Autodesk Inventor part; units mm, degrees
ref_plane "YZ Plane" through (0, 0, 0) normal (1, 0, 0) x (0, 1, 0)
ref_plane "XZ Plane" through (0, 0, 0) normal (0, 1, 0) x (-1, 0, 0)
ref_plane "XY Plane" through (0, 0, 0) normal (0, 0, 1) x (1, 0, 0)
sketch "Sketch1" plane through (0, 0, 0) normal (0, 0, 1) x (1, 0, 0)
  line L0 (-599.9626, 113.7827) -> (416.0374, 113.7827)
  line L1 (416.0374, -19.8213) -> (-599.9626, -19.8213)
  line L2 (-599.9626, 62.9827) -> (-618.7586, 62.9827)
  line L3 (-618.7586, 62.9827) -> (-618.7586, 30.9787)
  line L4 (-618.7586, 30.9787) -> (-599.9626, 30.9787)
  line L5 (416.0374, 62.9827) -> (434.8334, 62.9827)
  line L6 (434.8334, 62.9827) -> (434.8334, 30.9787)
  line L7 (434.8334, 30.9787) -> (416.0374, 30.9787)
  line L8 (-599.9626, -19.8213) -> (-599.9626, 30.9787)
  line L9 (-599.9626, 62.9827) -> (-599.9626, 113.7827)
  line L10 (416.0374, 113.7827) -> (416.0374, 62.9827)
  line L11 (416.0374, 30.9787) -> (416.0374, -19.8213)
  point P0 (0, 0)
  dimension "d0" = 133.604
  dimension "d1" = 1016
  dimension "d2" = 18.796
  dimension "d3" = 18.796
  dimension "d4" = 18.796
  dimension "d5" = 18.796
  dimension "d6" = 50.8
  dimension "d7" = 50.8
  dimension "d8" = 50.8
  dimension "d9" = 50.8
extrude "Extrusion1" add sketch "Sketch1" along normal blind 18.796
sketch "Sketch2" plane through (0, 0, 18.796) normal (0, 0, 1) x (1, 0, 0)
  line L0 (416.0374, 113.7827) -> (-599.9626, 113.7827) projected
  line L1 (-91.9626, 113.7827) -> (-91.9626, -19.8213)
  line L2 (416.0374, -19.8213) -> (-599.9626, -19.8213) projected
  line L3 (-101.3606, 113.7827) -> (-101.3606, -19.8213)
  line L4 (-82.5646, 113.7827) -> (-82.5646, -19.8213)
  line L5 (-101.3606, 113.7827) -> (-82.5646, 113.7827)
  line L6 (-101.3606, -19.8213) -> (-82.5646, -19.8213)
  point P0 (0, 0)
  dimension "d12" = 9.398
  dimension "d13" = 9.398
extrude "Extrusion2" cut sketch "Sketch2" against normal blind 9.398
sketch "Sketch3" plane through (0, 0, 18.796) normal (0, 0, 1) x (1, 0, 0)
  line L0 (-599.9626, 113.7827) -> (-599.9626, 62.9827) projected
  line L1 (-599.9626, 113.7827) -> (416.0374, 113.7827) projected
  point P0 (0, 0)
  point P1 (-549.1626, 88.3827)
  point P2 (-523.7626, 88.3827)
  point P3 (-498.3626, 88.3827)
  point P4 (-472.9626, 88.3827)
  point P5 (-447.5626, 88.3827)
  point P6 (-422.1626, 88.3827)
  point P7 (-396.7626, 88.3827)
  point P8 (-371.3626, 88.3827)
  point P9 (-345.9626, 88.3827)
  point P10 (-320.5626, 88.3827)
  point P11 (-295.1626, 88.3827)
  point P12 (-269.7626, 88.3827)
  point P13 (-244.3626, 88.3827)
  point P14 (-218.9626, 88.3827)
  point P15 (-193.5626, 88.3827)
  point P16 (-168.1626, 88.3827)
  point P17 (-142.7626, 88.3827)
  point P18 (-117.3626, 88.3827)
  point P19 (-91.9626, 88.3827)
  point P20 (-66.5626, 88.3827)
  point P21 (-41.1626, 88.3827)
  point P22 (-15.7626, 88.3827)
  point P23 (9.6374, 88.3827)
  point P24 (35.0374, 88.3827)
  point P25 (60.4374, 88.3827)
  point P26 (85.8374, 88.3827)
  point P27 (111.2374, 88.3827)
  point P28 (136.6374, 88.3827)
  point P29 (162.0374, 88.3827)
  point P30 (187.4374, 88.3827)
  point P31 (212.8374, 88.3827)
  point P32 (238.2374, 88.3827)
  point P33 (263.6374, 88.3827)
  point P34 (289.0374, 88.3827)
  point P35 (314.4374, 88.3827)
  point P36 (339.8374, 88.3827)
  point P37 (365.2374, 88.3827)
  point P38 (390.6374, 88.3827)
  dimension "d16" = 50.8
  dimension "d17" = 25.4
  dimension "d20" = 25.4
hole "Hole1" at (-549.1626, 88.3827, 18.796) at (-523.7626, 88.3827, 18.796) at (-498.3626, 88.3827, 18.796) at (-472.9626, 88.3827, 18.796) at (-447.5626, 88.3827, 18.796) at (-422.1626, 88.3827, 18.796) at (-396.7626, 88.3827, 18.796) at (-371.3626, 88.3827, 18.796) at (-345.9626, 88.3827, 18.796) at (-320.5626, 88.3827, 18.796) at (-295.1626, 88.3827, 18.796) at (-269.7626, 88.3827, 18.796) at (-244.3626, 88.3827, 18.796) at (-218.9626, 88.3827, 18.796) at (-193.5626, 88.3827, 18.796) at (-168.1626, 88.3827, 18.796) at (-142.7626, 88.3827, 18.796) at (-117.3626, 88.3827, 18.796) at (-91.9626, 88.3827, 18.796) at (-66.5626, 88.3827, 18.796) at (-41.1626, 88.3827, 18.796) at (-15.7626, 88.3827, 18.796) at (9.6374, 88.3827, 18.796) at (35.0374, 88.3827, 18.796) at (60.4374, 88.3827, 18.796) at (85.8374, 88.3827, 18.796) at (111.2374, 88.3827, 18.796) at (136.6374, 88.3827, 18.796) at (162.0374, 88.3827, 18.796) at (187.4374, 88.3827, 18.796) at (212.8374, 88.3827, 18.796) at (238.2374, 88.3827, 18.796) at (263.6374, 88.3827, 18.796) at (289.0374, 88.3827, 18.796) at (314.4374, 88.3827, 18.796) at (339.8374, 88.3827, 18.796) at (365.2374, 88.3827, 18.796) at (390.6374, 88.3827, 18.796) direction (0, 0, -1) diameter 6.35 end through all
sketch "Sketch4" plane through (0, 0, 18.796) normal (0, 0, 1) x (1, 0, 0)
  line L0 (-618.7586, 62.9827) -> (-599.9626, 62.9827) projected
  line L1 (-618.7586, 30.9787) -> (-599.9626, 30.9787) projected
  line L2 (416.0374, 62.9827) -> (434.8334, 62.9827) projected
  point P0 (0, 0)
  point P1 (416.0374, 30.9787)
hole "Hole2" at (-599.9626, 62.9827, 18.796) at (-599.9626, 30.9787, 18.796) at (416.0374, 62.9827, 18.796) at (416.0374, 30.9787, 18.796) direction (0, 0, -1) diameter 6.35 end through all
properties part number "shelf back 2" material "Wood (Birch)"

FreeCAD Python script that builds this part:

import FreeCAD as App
import Part
import Sketcher
from FreeCAD import Vector
Q = App.Units.Quantity


def add_polygon(sketch, points):
    """Adds a closed chain of lines whose ends are joined by coincident constraints."""
    first, n = sketch.GeometryCount, len(points)
    for a, b in zip(points, points[1:] + points[:1]):
        sketch.addGeometry(Part.LineSegment(App.Vector(*a, 0), App.Vector(*b, 0)), False)
    for i in range(n):
        sketch.addConstraint(Sketcher.Constraint("Coincident", first + i, 2, first + (i + 1) % n, 1))

doc = App.newDocument("Part")
body = doc.addObject("PartDesign::Body", "Body")

# Sketch on XY plane
sketch1 = body.newObject("Sketcher::SketchObject", "Sketch")
sketch1.AttachmentSupport = (doc.getObject("XY_Plane"), [""])
sketch1.MapMode = "FlatFace"
add_polygon(sketch1, [(416.0374, 113.7827), (-599.9626, 113.7827), (-599.9626, 62.9827), (-618.7586, 62.9827), (-618.7586, 30.9787), (-599.9626, 30.9787), (-599.9626, -19.8213), (416.0374, -19.8213), (416.0374, 30.9787), (434.8334, 30.9787), (434.8334, 62.9827), (416.0374, 62.9827)])  # lines 0-11
sketch1.addConstraint([
    Sketcher.Constraint("Horizontal", 0),
    Sketcher.Constraint("Vertical", 1),
    Sketcher.Constraint("Horizontal", 2),
    Sketcher.Constraint("Vertical", 3),
    Sketcher.Constraint("Horizontal", 4),
    Sketcher.Constraint("Vertical", 5),
    Sketcher.Constraint("Horizontal", 6),
    Sketcher.Constraint("Vertical", 7),
    Sketcher.Constraint("Horizontal", 8),
    Sketcher.Constraint("Vertical", 9),
    Sketcher.Constraint("Horizontal", 10),
    Sketcher.Constraint("Vertical", 11),
    Sketcher.Constraint("Horizontal", 4, 2, 7, 2),
    Sketcher.Constraint("Horizontal", 2, 2, 9, 2),
    Sketcher.Constraint("Vertical", 1, 2, 4, 2),
    Sketcher.Constraint("Vertical", 7, 2, 10, 2),
    Sketcher.Constraint("Equal", 4, 8),
    Sketcher.Constraint("Equal", 1, 5),
    Sketcher.Constraint("DistanceX", 0, 2, 0, 1, Q("40 in")),
    Sketcher.Constraint("DistanceY", 1, 2, 1, 1, Q("2 in")),
    Sketcher.Constraint("DistanceX", 2, 2, 2, 1, Q("0.74 in")),
    Sketcher.Constraint("DistanceY", 5, 2, 0, 2, Q("5.26 in")),
    Sketcher.Constraint("DistanceX", 0, 2, -1, 1, 599.9626),
    Sketcher.Constraint("DistanceY", -1, 1, 0, 2, 113.7827),
])
pad1 = body.newObject("PartDesign::Pad", "Pad")
pad1.Profile = sketch1
pad1.Length = Q("0.74 in")

# Sketch on XY plane
sketch2 = body.newObject("Sketcher::SketchObject", "Sketch001")
sketch2.AttachmentSupport = (doc.getObject("XY_Plane"), [""])
sketch2.MapMode = "FlatFace"
sketch2.AttachmentOffset = App.Placement(Vector(0, 0, 0.74 * 25.4), App.Rotation())
add_polygon(sketch2, [(-82.5646, -19.8213), (-82.5646, 113.7827), (-101.3606, 113.7827), (-101.3606, -19.8213)])  # lines 0-3
sketch2.addConstraint([
    Sketcher.Constraint("Vertical", 0),
    Sketcher.Constraint("Horizontal", 1),
    Sketcher.Constraint("Vertical", 2),
    Sketcher.Constraint("Horizontal", 3),
    Sketcher.Constraint("DistanceX", 1, 2, 1, 1, Q("0.74 in")),
    Sketcher.Constraint("DistanceY", 0, 1, 0, 2, Q("5.26 in")),
    Sketcher.Constraint("DistanceX", 0, 2, -1, 1, 82.5646),
    Sketcher.Constraint("DistanceY", -1, 1, 0, 2, 113.7827),
])
pocket1 = body.newObject("PartDesign::Pocket", "Pocket")
pocket1.Profile = sketch2
pocket1.Length = Q("0.37 in")

# Sketch on XY plane
sketch3 = body.newObject("Sketcher::SketchObject", "Sketch002")
sketch3.AttachmentSupport = (doc.getObject("XY_Plane"), [""])
sketch3.MapMode = "FlatFace"
sketch3.AttachmentOffset = App.Placement(Vector(0, 0, 0.74 * 25.4), App.Rotation())
sketch3.addGeometry([
    Part.Circle(Vector(-549.1626, 88.3827, 0), Vector(0, 0, 1), 3.175),  # 0
    Part.Circle(Vector(-523.7626, 88.3827, 0), Vector(0, 0, 1), 3.175),  # 1
    Part.Circle(Vector(-498.3626, 88.3827, 0), Vector(0, 0, 1), 3.175),  # 2
    Part.Circle(Vector(-472.9626, 88.3827, 0), Vector(0, 0, 1), 3.175),  # 3
    Part.Circle(Vector(-447.5626, 88.3827, 0), Vector(0, 0, 1), 3.175),  # 4
    Part.Circle(Vector(-422.1626, 88.3827, 0), Vector(0, 0, 1), 3.175),  # 5
    Part.Circle(Vector(-396.7626, 88.3827, 0), Vector(0, 0, 1), 3.175),  # 6
    Part.Circle(Vector(-371.3626, 88.3827, 0), Vector(0, 0, 1), 3.175),  # 7
    Part.Circle(Vector(-345.9626, 88.3827, 0), Vector(0, 0, 1), 3.175),  # 8
    Part.Circle(Vector(-320.5626, 88.3827, 0), Vector(0, 0, 1), 3.175),  # 9
    Part.Circle(Vector(-295.1626, 88.3827, 0), Vector(0, 0, 1), 3.175),  # 10
    Part.Circle(Vector(-269.7626, 88.3827, 0), Vector(0, 0, 1), 3.175),  # 11
    Part.Circle(Vector(-244.3626, 88.3827, 0), Vector(0, 0, 1), 3.175),  # 12
    Part.Circle(Vector(-218.9626, 88.3827, 0), Vector(0, 0, 1), 3.175),  # 13
    Part.Circle(Vector(-193.5626, 88.3827, 0), Vector(0, 0, 1), 3.175),  # 14
    Part.Circle(Vector(-168.1626, 88.3827, 0), Vector(0, 0, 1), 3.175),  # 15
    Part.Circle(Vector(-142.7626, 88.3827, 0), Vector(0, 0, 1), 3.175),  # 16
    Part.Circle(Vector(-117.3626, 88.3827, 0), Vector(0, 0, 1), 3.175),  # 17
    Part.Circle(Vector(-91.9626, 88.3827, 0), Vector(0, 0, 1), 3.175),  # 18
    Part.Circle(Vector(-66.5626, 88.3827, 0), Vector(0, 0, 1), 3.175),  # 19
    Part.Circle(Vector(-41.1626, 88.3827, 0), Vector(0, 0, 1), 3.175),  # 20
    Part.Circle(Vector(-15.7626, 88.3827, 0), Vector(0, 0, 1), 3.175),  # 21
    Part.Circle(Vector(9.6374, 88.3827, 0), Vector(0, 0, 1), 3.175),  # 22
    Part.Circle(Vector(35.0374, 88.3827, 0), Vector(0, 0, 1), 3.175),  # 23
    Part.Circle(Vector(60.4374, 88.3827, 0), Vector(0, 0, 1), 3.175),  # 24
    Part.Circle(Vector(85.8374, 88.3827, 0), Vector(0, 0, 1), 3.175),  # 25
    Part.Circle(Vector(111.2374, 88.3827, 0), Vector(0, 0, 1), 3.175),  # 26
    Part.Circle(Vector(136.6374, 88.3827, 0), Vector(0, 0, 1), 3.175),  # 27
    Part.Circle(Vector(162.0374, 88.3827, 0), Vector(0, 0, 1), 3.175),  # 28
    Part.Circle(Vector(187.4374, 88.3827, 0), Vector(0, 0, 1), 3.175),  # 29
    Part.Circle(Vector(212.8374, 88.3827, 0), Vector(0, 0, 1), 3.175),  # 30
    Part.Circle(Vector(238.2374, 88.3827, 0), Vector(0, 0, 1), 3.175),  # 31
    Part.Circle(Vector(263.6374, 88.3827, 0), Vector(0, 0, 1), 3.175),  # 32
    Part.Circle(Vector(289.0374, 88.3827, 0), Vector(0, 0, 1), 3.175),  # 33
    Part.Circle(Vector(314.4374, 88.3827, 0), Vector(0, 0, 1), 3.175),  # 34
    Part.Circle(Vector(339.8374, 88.3827, 0), Vector(0, 0, 1), 3.175),  # 35
    Part.Circle(Vector(365.2374, 88.3827, 0), Vector(0, 0, 1), 3.175),  # 36
    Part.Circle(Vector(390.6374, 88.3827, 0), Vector(0, 0, 1), 3.175),  # 37
], False)
sketch3.addConstraint([
    Sketcher.Constraint("Equal", 0, 1),
    Sketcher.Constraint("Equal", 1, 2),
    Sketcher.Constraint("Equal", 2, 3),
    Sketcher.Constraint("Equal", 3, 4),
    Sketcher.Constraint("Equal", 4, 5),
    Sketcher.Constraint("Equal", 5, 6),
    Sketcher.Constraint("Equal", 6, 7),
    Sketcher.Constraint("Equal", 7, 8),
    Sketcher.Constraint("Equal", 8, 9),
    Sketcher.Constraint("Equal", 9, 10),
    Sketcher.Constraint("Equal", 10, 11),
    Sketcher.Constraint("Equal", 11, 12),
    Sketcher.Constraint("Equal", 12, 13),
    Sketcher.Constraint("Equal", 13, 14),
    Sketcher.Constraint("Equal", 14, 15),
    Sketcher.Constraint("Equal", 15, 16),
    Sketcher.Constraint("Equal", 16, 17),
    Sketcher.Constraint("Equal", 17, 18),
    Sketcher.Constraint("Equal", 18, 19),
    Sketcher.Constraint("Equal", 19, 20),
    Sketcher.Constraint("Equal", 20, 21),
    Sketcher.Constraint("Equal", 21, 22),
    Sketcher.Constraint("Equal", 22, 23),
    Sketcher.Constraint("Equal", 23, 24),
    Sketcher.Constraint("Equal", 24, 25),
    Sketcher.Constraint("Equal", 25, 26),
    Sketcher.Constraint("Equal", 26, 27),
    Sketcher.Constraint("Equal", 27, 28),
    Sketcher.Constraint("Equal", 28, 29),
    Sketcher.Constraint("Equal", 29, 30),
    Sketcher.Constraint("Equal", 30, 31),
    Sketcher.Constraint("Equal", 31, 32),
    Sketcher.Constraint("Equal", 32, 33),
    Sketcher.Constraint("Equal", 33, 34),
    Sketcher.Constraint("Equal", 34, 35),
    Sketcher.Constraint("Equal", 35, 36),
    Sketcher.Constraint("Equal", 36, 37),
    Sketcher.Constraint("Horizontal", 0, 3, 1, 3),
    Sketcher.Constraint("Horizontal", 1, 3, 2, 3),
    Sketcher.Constraint("Horizontal", 2, 3, 3, 3),
    Sketcher.Constraint("Horizontal", 3, 3, 4, 3),
    Sketcher.Constraint("Horizontal", 4, 3, 5, 3),
    Sketcher.Constraint("Horizontal", 5, 3, 6, 3),
    Sketcher.Constraint("Horizontal", 6, 3, 7, 3),
    Sketcher.Constraint("Horizontal", 7, 3, 8, 3),
    Sketcher.Constraint("Horizontal", 8, 3, 9, 3),
    Sketcher.Constraint("Horizontal", 9, 3, 10, 3),
    Sketcher.Constraint("Horizontal", 10, 3, 11, 3),
    Sketcher.Constraint("Horizontal", 11, 3, 12, 3),
    Sketcher.Constraint("Horizontal", 12, 3, 13, 3),
    Sketcher.Constraint("Horizontal", 13, 3, 14, 3),
    Sketcher.Constraint("Horizontal", 14, 3, 15, 3),
    Sketcher.Constraint("Horizontal", 15, 3, 16, 3),
    Sketcher.Constraint("Horizontal", 16, 3, 17, 3),
    Sketcher.Constraint("Horizontal", 17, 3, 18, 3),
    Sketcher.Constraint("Horizontal", 18, 3, 19, 3),
    Sketcher.Constraint("Horizontal", 19, 3, 20, 3),
    Sketcher.Constraint("Horizontal", 20, 3, 21, 3),
    Sketcher.Constraint("Horizontal", 21, 3, 22, 3),
    Sketcher.Constraint("Horizontal", 22, 3, 23, 3),
    Sketcher.Constraint("Horizontal", 23, 3, 24, 3),
    Sketcher.Constraint("Horizontal", 24, 3, 25, 3),
    Sketcher.Constraint("Horizontal", 25, 3, 26, 3),
    Sketcher.Constraint("Horizontal", 26, 3, 27, 3),
    Sketcher.Constraint("Horizontal", 27, 3, 28, 3),
    Sketcher.Constraint("Horizontal", 28, 3, 29, 3),
    Sketcher.Constraint("Horizontal", 29, 3, 30, 3),
    Sketcher.Constraint("Horizontal", 30, 3, 31, 3),
    Sketcher.Constraint("Horizontal", 31, 3, 32, 3),
    Sketcher.Constraint("Horizontal", 32, 3, 33, 3),
    Sketcher.Constraint("Horizontal", 33, 3, 34, 3),
    Sketcher.Constraint("Horizontal", 34, 3, 35, 3),
    Sketcher.Constraint("Horizontal", 35, 3, 36, 3),
    Sketcher.Constraint("Horizontal", 36, 3, 37, 3),
    Sketcher.Constraint("Diameter", 0, Q("0.25 in")),
    Sketcher.Constraint("DistanceX", 0, 3, 1, 3, Q("1 in")),
    Sketcher.Constraint("DistanceX", 1, 3, 2, 3, Q("1 in")),
    Sketcher.Constraint("DistanceX", 2, 3, 3, 3, Q("1 in")),
    Sketcher.Constraint("DistanceX", 3, 3, 4, 3, Q("1 in")),
    Sketcher.Constraint("DistanceX", 4, 3, 5, 3, Q("1 in")),
    Sketcher.Constraint("DistanceX", 5, 3, 6, 3, Q("1 in")),
    Sketcher.Constraint("DistanceX", 6, 3, 7, 3, Q("1 in")),
    Sketcher.Constraint("DistanceX", 7, 3, 8, 3, Q("1 in")),
    Sketcher.Constraint("DistanceX", 8, 3, 9, 3, Q("1 in")),
    Sketcher.Constraint("DistanceX", 9, 3, 10, 3, Q("1 in")),
    Sketcher.Constraint("DistanceX", 10, 3, 11, 3, Q("1 in")),
    Sketcher.Constraint("DistanceX", 11, 3, 12, 3, Q("1 in")),
    Sketcher.Constraint("DistanceX", 12, 3, 13, 3, Q("1 in")),
    Sketcher.Constraint("DistanceX", 13, 3, 14, 3, Q("1 in")),
    Sketcher.Constraint("DistanceX", 14, 3, 15, 3, Q("1 in")),
    Sketcher.Constraint("DistanceX", 15, 3, 16, 3, Q("1 in")),
    Sketcher.Constraint("DistanceX", 16, 3, 17, 3, Q("1 in")),
    Sketcher.Constraint("DistanceX", 17, 3, 18, 3, Q("1 in")),
    Sketcher.Constraint("DistanceX", 18, 3, 19, 3, Q("1 in")),
    Sketcher.Constraint("DistanceX", 19, 3, 20, 3, Q("1 in")),
    Sketcher.Constraint("DistanceX", 20, 3, 21, 3, Q("1 in")),
    Sketcher.Constraint("DistanceX", 21, 3, 22, 3, Q("1 in")),
    Sketcher.Constraint("DistanceX", 22, 3, 23, 3, Q("1 in")),
    Sketcher.Constraint("DistanceX", 23, 3, 24, 3, Q("1 in")),
    Sketcher.Constraint("DistanceX", 24, 3, 25, 3, Q("1 in")),
    Sketcher.Constraint("DistanceX", 25, 3, 26, 3, Q("1 in")),
    Sketcher.Constraint("DistanceX", 26, 3, 27, 3, Q("1 in")),
    Sketcher.Constraint("DistanceX", 27, 3, 28, 3, Q("1 in")),
    Sketcher.Constraint("DistanceX", 28, 3, 29, 3, Q("1 in")),
    Sketcher.Constraint("DistanceX", 29, 3, 30, 3, Q("1 in")),
    Sketcher.Constraint("DistanceX", 30, 3, 31, 3, Q("1 in")),
    Sketcher.Constraint("DistanceX", 31, 3, 32, 3, Q("1 in")),
    Sketcher.Constraint("DistanceX", 32, 3, 33, 3, Q("1 in")),
    Sketcher.Constraint("DistanceX", 33, 3, 34, 3, Q("1 in")),
    Sketcher.Constraint("DistanceX", 34, 3, 35, 3, Q("1 in")),
    Sketcher.Constraint("DistanceX", 35, 3, 36, 3, Q("1 in")),
    Sketcher.Constraint("DistanceX", 36, 3, 37, 3, Q("1 in")),
    Sketcher.Constraint("DistanceX", 0, 3, -1, 1, 549.1626),
    Sketcher.Constraint("DistanceY", -1, 1, 0, 3, 88.3827),
])
doc.recompute()
hole = body.newObject("PartDesign::Hole", "Hole")
hole.Profile = sketch3
hole.ThreadType = "None"
hole.Diameter = Q("0.25 in")
hole.DepthType = "ThroughAll"

# Sketch on XY plane
sketch4 = body.newObject("Sketcher::SketchObject", "Sketch003")
sketch4.AttachmentSupport = (doc.getObject("XY_Plane"), [""])
sketch4.MapMode = "FlatFace"
sketch4.AttachmentOffset = App.Placement(Vector(0, 0, 0.74 * 25.4), App.Rotation())
sketch4.addGeometry([
    Part.Circle(Vector(-599.9626, 62.9827, 0), Vector(0, 0, 1), 3.175),
    Part.Circle(Vector(-599.9626, 30.9787, 0), Vector(0, 0, 1), 3.175),
    Part.Circle(Vector(416.0374, 62.9827, 0), Vector(0, 0, 1), 3.175),
    Part.Circle(Vector(416.0374, 30.9787, 0), Vector(0, 0, 1), 3.175),
], False)
sketch4.addConstraint([
    Sketcher.Constraint("Equal", 0, 1),
    Sketcher.Constraint("Equal", 1, 2),
    Sketcher.Constraint("Equal", 2, 3),
    Sketcher.Constraint("Horizontal", 0, 3, 2, 3),
    Sketcher.Constraint("Horizontal", 1, 3, 3, 3),
    Sketcher.Constraint("Vertical", 0, 3, 1, 3),
    Sketcher.Constraint("Vertical", 2, 3, 3, 3),
    Sketcher.Constraint("Diameter", 0, Q("0.25 in")),
    Sketcher.Constraint("DistanceX", 0, 3, 2, 3, Q("40 in")),
    Sketcher.Constraint("DistanceY", 1, 3, 0, 3, Q("1.26 in")),
    Sketcher.Constraint("DistanceX", 0, 3, -1, 1, 599.9626),
    Sketcher.Constraint("DistanceY", -1, 1, 0, 3, 62.9827),
])
doc.recompute()
hole2 = body.newObject("PartDesign::Hole", "Hole001")
hole2.Profile = sketch4
hole2.ThreadType = "None"
hole2.Diameter = Q("0.25 in")
hole2.DepthType = "ThroughAll"

doc.recompute()
